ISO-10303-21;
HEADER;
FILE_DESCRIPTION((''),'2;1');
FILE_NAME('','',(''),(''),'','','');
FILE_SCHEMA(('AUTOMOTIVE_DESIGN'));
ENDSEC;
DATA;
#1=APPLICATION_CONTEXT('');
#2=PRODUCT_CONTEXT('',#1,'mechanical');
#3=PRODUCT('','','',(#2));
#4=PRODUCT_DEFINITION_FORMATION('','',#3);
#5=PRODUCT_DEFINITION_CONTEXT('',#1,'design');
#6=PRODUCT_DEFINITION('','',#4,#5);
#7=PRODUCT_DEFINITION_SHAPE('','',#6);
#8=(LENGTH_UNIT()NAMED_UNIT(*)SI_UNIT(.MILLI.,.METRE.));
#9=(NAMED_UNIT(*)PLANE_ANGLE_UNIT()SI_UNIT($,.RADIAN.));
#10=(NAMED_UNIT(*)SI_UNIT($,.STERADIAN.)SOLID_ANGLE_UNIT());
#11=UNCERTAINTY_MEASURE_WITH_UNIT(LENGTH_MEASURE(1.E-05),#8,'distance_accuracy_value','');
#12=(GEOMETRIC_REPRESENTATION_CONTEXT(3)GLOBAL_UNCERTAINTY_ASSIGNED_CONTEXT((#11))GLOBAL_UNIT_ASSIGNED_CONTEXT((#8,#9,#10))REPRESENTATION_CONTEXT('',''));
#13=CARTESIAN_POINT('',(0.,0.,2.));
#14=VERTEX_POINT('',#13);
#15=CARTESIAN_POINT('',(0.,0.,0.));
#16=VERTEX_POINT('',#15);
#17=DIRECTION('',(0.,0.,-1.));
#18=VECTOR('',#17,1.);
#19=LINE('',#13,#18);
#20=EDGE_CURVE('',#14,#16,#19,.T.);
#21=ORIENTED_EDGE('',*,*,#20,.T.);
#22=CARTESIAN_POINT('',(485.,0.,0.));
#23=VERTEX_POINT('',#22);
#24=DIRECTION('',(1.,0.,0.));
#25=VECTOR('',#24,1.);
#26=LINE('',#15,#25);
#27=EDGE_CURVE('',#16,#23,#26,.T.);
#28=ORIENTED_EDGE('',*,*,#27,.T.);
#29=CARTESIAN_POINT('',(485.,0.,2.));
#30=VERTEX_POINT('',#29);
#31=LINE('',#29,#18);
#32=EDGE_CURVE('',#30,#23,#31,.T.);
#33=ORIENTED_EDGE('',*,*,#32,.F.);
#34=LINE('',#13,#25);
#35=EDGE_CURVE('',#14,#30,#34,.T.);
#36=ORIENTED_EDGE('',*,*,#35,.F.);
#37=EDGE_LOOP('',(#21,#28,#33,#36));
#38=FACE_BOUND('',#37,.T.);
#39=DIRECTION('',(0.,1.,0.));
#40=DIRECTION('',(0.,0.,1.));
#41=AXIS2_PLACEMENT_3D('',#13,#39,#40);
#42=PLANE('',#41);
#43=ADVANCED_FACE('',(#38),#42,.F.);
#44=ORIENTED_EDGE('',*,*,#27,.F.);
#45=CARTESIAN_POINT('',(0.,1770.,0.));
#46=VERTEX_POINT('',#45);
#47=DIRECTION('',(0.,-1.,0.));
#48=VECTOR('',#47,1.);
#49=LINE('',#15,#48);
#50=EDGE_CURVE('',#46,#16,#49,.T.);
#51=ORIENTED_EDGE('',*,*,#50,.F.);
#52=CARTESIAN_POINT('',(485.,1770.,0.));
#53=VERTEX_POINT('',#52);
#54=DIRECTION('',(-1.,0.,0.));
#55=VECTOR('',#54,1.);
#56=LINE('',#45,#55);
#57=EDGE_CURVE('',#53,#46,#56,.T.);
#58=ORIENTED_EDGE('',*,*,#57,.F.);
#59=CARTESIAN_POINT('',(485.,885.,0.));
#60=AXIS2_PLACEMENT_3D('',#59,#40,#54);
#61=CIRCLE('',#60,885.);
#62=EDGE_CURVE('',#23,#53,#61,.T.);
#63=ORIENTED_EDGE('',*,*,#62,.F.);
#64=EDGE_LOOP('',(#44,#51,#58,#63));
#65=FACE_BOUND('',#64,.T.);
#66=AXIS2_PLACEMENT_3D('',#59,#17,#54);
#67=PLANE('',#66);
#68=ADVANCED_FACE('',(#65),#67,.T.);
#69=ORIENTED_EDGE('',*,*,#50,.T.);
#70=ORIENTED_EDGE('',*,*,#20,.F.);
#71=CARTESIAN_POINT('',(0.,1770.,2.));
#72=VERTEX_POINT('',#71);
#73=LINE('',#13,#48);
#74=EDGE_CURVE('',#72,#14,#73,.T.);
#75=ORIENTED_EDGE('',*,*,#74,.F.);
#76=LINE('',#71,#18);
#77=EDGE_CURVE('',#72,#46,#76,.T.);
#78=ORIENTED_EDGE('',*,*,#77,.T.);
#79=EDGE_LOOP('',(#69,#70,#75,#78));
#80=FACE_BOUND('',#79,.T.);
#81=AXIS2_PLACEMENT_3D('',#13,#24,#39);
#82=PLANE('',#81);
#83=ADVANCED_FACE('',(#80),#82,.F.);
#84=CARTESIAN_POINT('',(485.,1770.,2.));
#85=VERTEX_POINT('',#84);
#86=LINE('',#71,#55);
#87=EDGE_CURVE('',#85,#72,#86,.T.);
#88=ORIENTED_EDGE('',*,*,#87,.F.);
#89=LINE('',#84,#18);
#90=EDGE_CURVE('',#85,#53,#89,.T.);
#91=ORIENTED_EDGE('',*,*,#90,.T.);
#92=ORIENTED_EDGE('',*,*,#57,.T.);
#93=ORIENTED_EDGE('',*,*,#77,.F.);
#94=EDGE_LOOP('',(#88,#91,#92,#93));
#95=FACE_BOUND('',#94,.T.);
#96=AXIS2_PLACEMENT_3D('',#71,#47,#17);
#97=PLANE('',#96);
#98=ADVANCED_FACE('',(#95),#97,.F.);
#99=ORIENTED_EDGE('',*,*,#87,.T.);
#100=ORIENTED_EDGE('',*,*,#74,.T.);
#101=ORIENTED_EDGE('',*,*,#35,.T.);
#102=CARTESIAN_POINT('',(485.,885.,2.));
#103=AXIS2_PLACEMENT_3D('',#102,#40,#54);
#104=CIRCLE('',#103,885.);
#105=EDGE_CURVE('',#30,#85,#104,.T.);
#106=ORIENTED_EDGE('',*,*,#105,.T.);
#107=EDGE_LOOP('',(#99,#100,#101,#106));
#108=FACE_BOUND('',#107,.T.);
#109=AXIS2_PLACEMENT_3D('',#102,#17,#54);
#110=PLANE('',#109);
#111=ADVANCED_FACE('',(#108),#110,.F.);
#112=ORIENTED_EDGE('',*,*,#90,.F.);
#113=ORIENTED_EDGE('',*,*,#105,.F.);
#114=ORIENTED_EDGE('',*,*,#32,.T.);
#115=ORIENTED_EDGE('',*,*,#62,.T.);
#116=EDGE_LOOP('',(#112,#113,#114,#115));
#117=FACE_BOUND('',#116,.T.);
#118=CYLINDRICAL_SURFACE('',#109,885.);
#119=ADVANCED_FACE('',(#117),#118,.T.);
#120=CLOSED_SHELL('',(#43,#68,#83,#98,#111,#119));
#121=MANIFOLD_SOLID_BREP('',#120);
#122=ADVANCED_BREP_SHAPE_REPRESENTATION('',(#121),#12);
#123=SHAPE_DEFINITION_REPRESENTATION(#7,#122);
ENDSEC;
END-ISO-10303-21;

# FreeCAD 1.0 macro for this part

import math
import FreeCAD as App
import Part
import Sketcher

V = App.Vector
Q = App.Units.Quantity

doc = App.newDocument("Part")
body = doc.addObject("PartDesign::Body", "Body")

# Sketch on XY plane
sketch1 = body.newObject("Sketcher::SketchObject", "Sketch")
sketch1.AttachmentSupport = (doc.getObject("XY_Plane"), [""])
sketch1.MapMode = "FlatFace"
sketch1.addGeometry([
    Part.LineSegment(V(0, 0, 0), V(485, 0, 0)),
    Part.ArcOfCircle(Part.Circle(V(485, 885, 0), V(0, 0, 1), 885), math.radians(-90), math.radians(90)),
    Part.LineSegment(V(485, 1770, 0), V(0, 1770, 0)),
    Part.LineSegment(V(0, 1770, 0), V(0, 0, 0)),
], False)
sketch1.addConstraint([
    Sketcher.Constraint("Tangent", 0, 2, 1, 1),
    Sketcher.Constraint("Tangent", 1, 2, 2, 1),
    Sketcher.Constraint("Coincident", 2, 2, 3, 1),
    Sketcher.Constraint("Coincident", 3, 2, 0, 1),
    Sketcher.Constraint("Horizontal", 0),
    Sketcher.Constraint("Horizontal", 2),
    Sketcher.Constraint("Vertical", 3),
    Sketcher.Constraint("Coincident", 3, 2, -1, 1),
    Sketcher.Constraint("Radius", 1, Q("885 mm")),
    Sketcher.Constraint("DistanceX", 0, 1, 0, 2, Q("485 mm")),
])
pad1 = body.newObject("PartDesign::Pad", "Pad")
pad1.Profile = sketch1
pad1.Length = 2

doc.recompute()
